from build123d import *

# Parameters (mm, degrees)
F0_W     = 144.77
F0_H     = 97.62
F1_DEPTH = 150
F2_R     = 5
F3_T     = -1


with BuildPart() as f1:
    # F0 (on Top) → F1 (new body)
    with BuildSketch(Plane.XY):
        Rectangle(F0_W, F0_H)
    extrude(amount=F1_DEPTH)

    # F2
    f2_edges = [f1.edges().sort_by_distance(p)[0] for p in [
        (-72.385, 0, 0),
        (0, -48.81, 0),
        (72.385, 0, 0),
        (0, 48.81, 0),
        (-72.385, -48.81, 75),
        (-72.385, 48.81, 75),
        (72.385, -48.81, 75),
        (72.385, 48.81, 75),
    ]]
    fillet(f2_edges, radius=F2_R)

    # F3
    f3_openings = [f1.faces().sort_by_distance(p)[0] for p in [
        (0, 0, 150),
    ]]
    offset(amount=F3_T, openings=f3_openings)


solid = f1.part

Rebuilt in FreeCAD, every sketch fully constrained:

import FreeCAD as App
import Part
import Sketcher


def edges_at(feature, points):
    """Names of the edges that pass closest to the given points."""
    edges = feature.Shape.Edges
    near = lambda p: min(range(len(edges)), key=lambda i: edges[i].distToShape(Part.Vertex(*p))[0])
    return sorted({f"Edge{near(p) + 1}" for p in points})


def faces_at(feature, points):
    """Names of the faces that lie closest to the given points."""
    faces = feature.Shape.Faces
    near = lambda p: min(range(len(faces)), key=lambda i: faces[i].distToShape(Part.Vertex(*p))[0])
    return sorted({f"Face{near(p) + 1}" for p in points})


def add_polygon(sketch, points):
    """Adds a closed chain of lines whose ends are joined by coincident constraints."""
    first, n = sketch.GeometryCount, len(points)
    for a, b in zip(points, points[1:] + points[:1]):
        sketch.addGeometry(Part.LineSegment(App.Vector(*a, 0), App.Vector(*b, 0)), False)
    for i in range(n):
        sketch.addConstraint(Sketcher.Constraint("Coincident", first + i, 2, first + (i + 1) % n, 1))

doc = App.newDocument("Part")
body = doc.addObject("PartDesign::Body", "Body")

sketch1 = body.newObject("Sketcher::SketchObject", "Sketch")
sketch1.AttachmentSupport = (doc.getObject("XY_Plane"), [""])
sketch1.MapMode = "FlatFace"
add_polygon(sketch1, [(-72, 49), (-72, -49), (72, -49), (72, 49)])
sketch1.addConstraint(Sketcher.Constraint("Vertical", 0))
sketch1.addConstraint(Sketcher.Constraint("Horizontal", 1))
sketch1.addConstraint(Sketcher.Constraint("Vertical", 2))
sketch1.addConstraint(Sketcher.Constraint("Horizontal", 3))
sketch1.addConstraint(Sketcher.Constraint("Symmetric", 0, 2, 2, 2, -1, 1))
sketch1.addConstraint(Sketcher.Constraint("DistanceX", 1, 1, 1, 2, 144.77))
sketch1.addConstraint(Sketcher.Constraint("DistanceY", 0, 2, 0, 1, 97.62))
pad1 = body.newObject("PartDesign::Pad", "Pad")
pad1.Profile = sketch1
pad1.Length = 150
doc.recompute()

fillet = body.newObject("PartDesign::Fillet", "Fillet")
fillet.Base = (pad1, edges_at(pad1, [
    (-72.385, 0, 0),
    (0, -48.81, 0),
    (72.385, 0, 0),
    (0, 48.81, 0),
    (-72.385, -48.81, 75),
    (-72.385, 48.81, 75),
    (72.385, -48.81, 75),
    (72.385, 48.81, 75),
]))
fillet.Radius = 5
doc.recompute()

thickness = body.newObject("PartDesign::Thickness", "Thickness")
thickness.Base = (fillet, faces_at(fillet, [(0, 0, 150)]))
thickness.Value = 1
thickness.Reversed = True
thickness.Join = "Arc"

doc.recompute()
